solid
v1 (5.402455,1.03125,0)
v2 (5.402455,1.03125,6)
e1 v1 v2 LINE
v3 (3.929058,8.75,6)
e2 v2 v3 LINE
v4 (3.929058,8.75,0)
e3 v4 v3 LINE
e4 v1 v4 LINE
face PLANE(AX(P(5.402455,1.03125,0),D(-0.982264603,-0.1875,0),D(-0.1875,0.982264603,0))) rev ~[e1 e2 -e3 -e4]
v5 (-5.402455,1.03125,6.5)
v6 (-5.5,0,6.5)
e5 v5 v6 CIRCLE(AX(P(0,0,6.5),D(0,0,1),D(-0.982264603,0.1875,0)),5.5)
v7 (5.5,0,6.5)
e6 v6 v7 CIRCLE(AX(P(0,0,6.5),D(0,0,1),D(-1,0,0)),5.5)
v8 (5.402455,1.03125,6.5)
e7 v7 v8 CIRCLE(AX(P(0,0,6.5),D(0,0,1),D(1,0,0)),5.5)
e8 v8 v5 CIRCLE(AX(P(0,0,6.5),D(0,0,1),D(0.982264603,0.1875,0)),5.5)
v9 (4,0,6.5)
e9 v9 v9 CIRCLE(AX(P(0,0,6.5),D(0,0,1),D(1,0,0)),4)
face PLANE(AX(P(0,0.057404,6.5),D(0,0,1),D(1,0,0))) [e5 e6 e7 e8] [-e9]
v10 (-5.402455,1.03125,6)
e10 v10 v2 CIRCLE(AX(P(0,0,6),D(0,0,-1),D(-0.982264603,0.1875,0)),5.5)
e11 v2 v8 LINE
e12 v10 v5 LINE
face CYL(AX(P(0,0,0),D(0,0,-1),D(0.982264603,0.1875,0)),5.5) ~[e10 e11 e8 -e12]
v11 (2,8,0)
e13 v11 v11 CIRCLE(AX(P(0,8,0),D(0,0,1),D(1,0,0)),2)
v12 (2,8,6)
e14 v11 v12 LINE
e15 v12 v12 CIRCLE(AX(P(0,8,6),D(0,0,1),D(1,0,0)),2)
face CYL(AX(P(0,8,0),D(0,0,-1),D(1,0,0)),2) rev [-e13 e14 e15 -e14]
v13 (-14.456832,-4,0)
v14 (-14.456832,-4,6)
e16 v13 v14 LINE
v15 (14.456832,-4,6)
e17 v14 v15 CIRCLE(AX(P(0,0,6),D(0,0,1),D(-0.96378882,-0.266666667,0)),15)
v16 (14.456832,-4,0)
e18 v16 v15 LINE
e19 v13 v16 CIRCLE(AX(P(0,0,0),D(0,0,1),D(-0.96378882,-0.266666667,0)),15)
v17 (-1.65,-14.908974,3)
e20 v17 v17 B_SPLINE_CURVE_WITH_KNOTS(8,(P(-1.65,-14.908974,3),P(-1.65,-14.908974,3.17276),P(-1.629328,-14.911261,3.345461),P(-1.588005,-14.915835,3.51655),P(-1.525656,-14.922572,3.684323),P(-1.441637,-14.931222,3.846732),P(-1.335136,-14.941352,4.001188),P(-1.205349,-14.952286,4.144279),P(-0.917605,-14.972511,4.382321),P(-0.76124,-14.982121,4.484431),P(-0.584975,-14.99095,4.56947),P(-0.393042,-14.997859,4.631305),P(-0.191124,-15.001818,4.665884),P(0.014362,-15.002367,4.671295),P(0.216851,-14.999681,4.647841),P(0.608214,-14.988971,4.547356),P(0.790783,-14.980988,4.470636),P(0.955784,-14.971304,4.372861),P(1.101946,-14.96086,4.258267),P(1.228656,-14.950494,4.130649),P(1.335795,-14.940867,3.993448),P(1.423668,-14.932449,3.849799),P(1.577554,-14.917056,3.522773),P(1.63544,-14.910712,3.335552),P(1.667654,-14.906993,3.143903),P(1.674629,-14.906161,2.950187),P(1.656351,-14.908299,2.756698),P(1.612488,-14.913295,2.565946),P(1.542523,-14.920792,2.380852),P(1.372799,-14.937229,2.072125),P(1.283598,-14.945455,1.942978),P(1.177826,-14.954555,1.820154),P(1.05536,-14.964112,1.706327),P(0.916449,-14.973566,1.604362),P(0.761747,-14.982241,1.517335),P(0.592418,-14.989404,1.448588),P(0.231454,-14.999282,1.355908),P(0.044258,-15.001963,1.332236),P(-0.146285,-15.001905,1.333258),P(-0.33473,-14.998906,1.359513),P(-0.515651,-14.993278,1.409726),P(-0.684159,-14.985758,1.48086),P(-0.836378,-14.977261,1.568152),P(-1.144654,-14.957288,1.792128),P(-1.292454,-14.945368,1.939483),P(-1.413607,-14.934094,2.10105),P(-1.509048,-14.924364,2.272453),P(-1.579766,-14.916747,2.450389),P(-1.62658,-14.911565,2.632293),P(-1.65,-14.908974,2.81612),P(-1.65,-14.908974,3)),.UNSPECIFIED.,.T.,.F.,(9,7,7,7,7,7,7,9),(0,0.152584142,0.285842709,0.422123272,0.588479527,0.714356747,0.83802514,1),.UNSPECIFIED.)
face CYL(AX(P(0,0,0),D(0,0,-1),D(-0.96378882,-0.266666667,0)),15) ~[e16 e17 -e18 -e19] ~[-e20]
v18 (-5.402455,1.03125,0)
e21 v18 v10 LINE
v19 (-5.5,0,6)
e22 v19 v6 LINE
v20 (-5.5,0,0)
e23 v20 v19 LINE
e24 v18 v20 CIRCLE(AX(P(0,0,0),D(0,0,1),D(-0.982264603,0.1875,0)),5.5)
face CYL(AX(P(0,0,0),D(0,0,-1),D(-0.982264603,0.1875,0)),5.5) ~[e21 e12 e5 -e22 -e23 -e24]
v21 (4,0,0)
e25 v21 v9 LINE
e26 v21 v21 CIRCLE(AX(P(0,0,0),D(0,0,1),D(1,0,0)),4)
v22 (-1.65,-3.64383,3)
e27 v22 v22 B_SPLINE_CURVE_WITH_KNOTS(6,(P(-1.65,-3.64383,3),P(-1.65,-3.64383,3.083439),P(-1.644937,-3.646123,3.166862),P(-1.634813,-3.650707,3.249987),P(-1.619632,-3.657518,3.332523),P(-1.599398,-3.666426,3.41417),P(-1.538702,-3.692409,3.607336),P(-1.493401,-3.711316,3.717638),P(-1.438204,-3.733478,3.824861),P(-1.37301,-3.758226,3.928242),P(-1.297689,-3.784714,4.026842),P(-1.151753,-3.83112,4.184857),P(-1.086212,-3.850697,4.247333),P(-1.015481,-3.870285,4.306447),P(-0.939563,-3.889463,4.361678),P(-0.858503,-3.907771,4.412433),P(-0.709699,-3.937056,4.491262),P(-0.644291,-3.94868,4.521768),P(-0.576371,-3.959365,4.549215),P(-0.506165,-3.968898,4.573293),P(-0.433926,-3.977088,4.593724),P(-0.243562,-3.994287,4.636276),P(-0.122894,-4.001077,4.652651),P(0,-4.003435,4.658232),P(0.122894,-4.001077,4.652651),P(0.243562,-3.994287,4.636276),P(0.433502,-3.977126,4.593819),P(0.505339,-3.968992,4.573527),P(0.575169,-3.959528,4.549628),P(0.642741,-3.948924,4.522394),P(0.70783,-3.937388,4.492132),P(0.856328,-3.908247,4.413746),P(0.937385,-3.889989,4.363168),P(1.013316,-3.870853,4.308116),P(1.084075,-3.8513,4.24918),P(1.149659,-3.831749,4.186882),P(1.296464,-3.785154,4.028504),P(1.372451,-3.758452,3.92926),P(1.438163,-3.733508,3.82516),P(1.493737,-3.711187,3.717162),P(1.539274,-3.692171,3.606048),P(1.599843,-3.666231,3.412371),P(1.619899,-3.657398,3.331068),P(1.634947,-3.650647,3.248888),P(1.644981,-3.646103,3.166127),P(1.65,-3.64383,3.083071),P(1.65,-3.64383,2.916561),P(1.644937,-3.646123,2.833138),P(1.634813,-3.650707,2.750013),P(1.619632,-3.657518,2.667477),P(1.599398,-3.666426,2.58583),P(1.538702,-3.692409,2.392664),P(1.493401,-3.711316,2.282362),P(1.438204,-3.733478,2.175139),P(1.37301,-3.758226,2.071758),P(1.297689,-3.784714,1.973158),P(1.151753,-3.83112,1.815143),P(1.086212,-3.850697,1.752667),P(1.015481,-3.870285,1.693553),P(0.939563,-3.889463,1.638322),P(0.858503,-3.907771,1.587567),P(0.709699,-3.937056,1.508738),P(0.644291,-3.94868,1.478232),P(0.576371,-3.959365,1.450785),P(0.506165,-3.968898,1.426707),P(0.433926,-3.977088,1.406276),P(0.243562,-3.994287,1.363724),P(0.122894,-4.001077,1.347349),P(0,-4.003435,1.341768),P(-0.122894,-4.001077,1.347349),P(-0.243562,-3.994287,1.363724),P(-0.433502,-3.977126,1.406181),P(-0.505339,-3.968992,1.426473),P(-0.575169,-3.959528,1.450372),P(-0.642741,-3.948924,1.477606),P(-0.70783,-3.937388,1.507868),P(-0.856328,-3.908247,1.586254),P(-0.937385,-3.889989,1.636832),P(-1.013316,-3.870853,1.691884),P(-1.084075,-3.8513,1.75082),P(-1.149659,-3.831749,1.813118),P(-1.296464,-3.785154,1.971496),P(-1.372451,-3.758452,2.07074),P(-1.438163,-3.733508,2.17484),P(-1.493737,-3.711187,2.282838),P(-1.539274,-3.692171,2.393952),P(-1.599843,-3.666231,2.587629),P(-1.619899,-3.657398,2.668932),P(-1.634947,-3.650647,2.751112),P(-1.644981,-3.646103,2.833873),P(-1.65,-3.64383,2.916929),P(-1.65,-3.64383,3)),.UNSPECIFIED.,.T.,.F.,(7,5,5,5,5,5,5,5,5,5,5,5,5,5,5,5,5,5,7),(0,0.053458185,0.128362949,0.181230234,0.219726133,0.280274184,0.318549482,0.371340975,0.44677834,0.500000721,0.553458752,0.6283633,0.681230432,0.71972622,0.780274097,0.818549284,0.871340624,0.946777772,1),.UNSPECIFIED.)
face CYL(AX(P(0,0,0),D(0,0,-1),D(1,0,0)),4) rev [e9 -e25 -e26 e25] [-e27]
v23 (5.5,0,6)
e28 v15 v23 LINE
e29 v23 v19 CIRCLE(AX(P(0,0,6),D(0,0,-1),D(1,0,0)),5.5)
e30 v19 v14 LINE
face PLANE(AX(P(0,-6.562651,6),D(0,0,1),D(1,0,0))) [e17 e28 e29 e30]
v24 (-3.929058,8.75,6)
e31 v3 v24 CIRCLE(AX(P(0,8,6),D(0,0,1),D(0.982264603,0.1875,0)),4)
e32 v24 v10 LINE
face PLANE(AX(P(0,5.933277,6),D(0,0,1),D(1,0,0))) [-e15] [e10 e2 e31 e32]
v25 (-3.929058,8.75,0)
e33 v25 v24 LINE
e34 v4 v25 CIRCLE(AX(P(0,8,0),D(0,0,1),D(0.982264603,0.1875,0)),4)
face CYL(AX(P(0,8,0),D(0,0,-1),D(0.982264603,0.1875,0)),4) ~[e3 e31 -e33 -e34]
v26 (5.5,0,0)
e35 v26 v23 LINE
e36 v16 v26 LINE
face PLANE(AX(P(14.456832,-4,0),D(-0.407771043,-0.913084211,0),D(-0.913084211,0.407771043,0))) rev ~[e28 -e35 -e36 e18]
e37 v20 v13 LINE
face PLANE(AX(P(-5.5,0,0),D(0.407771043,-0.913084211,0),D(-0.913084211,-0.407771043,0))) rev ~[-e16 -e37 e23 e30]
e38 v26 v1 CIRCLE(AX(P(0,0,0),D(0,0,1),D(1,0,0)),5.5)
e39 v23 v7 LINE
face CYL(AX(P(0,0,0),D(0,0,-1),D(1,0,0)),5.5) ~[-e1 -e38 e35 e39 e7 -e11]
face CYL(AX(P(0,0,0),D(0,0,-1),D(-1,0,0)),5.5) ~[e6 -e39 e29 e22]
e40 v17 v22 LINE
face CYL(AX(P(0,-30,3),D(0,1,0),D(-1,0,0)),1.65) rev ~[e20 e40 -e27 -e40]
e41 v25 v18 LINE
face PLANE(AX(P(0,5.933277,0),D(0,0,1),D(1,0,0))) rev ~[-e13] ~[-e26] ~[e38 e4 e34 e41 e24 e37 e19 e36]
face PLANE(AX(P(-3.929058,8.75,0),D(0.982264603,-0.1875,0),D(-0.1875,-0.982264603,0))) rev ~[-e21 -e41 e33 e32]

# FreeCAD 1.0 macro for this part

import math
import FreeCAD as App
import Part
import Sketcher

doc = App.newDocument("Part")
body = doc.addObject("PartDesign::Body", "Body")

# Sketch on XY plane
sketch1 = doc.addObject("Sketcher::SketchObject", "Sketch")
body.addObject(sketch1)
sketch1.AttachmentSupport = (doc.XY_Plane, [""])
sketch1.MapMode = "FlatFace"
sketch1.addGeometry(Part.ArcOfCircle(Part.Circle(App.Vector(0, 0, 0), App.Vector(0, 0, 1), 5.5), math.radians(180), math.radians(360)), False)
sketch1.addGeometry(Part.ArcOfCircle(Part.Circle(App.Vector(0, 0, 0), App.Vector(0, 0, 1), 5.5), math.radians(0), math.radians(10.806923)), False)
sketch1.addGeometry(Part.ArcOfCircle(Part.Circle(App.Vector(0, 0, 0), App.Vector(0, 0, 1), 5.5), math.radians(10.806923), math.radians(169.193077)), False)
sketch1.addGeometry(Part.ArcOfCircle(Part.Circle(App.Vector(0, 0, 0), App.Vector(0, 0, 1), 5.5), math.radians(169.193077), math.radians(180)), False)
sketch1.addGeometry(Part.Circle(App.Vector(0, 0, 0), App.Vector(0, 0, 1), 4), False)
sketch1.addConstraint(Sketcher.Constraint("Tangent", 0, 2, 1, 1))
sketch1.addConstraint(Sketcher.Constraint("Tangent", 1, 2, 2, 1))
sketch1.addConstraint(Sketcher.Constraint("Tangent", 2, 2, 3, 1))
sketch1.addConstraint(Sketcher.Constraint("Tangent", 3, 2, 0, 1))
sketch1.addConstraint(Sketcher.Constraint("Coincident", 0, 3, -1, 1))
sketch1.addConstraint(Sketcher.Constraint("Coincident", 4, 3, -1, 1))
sketch1.addConstraint(Sketcher.Constraint("Equal", 0, 1))
sketch1.addConstraint(Sketcher.Constraint("PointOnObject", 0, 2, -1))
sketch1.addConstraint(Sketcher.Constraint("PointOnObject", 3, 2, -1))
sketch1.addConstraint(Sketcher.Constraint("Horizontal", 1, 2, 2, 2))
sketch1.addConstraint(Sketcher.Constraint("Diameter", 4, 8.0))
sketch1.addConstraint(Sketcher.Constraint("Radius", 0, 5.5))
sketch1.addConstraint(Sketcher.Constraint("DistanceY", -1, 1, 1, 2, 1.03125))
pad1 = doc.addObject("PartDesign::Pad", "Pad")
body.addObject(pad1)
pad1.Profile = sketch1
pad1.Length = 6.5

# Sketch on XY plane
sketch2 = doc.addObject("Sketcher::SketchObject", "Sketch001")
body.addObject(sketch2)
sketch2.AttachmentSupport = (doc.XY_Plane, [""])
sketch2.MapMode = "FlatFace"
sketch2.addGeometry(Part.ArcOfCircle(Part.Circle(App.Vector(0, 0, 0), App.Vector(0, 0, 1), 5.5), math.radians(10.806923), math.radians(169.193077)), False)
sketch2.addGeometry(Part.LineSegment(App.Vector(5.402455, 1.03125, 0), App.Vector(3.929058, 8.75, 0)), False)
sketch2.addGeometry(Part.ArcOfCircle(Part.Circle(App.Vector(0, 8, 0), App.Vector(0, 0, 1), 4), math.radians(10.806923), math.radians(169.193077)), False)
sketch2.addGeometry(Part.LineSegment(App.Vector(-3.929058, 8.75, 0), App.Vector(-5.402455, 1.03125, 0)), False)
sketch2.addGeometry(Part.Circle(App.Vector(0, 8, 0), App.Vector(0, 0, 1), 2), False)
sketch2.addGeometry(Part.LineSegment(App.Vector(14.456832, -4, 0), App.Vector(5.5, 0, 0)), False)
sketch2.addGeometry(Part.ArcOfCircle(Part.Circle(App.Vector(0, 0, 0), App.Vector(0, 0, 1), 5.5), math.radians(180), math.radians(360)), False)
sketch2.addGeometry(Part.LineSegment(App.Vector(-5.5, 0, 0), App.Vector(-14.456832, -4, 0)), False)
sketch2.addGeometry(Part.ArcOfCircle(Part.Circle(App.Vector(0, 0, 0), App.Vector(0, 0, 1), 15), math.radians(-164.53399), math.radians(-15.46601)), False)
sketch2.addConstraint(Sketcher.Constraint("Tangent", 0, 1, 1, 1))
sketch2.addConstraint(Sketcher.Constraint("Tangent", 1, 2, 2, 1))
sketch2.addConstraint(Sketcher.Constraint("Tangent", 2, 2, 3, 1))
sketch2.addConstraint(Sketcher.Constraint("Tangent", 3, 2, 0, 2))
sketch2.addConstraint(Sketcher.Constraint("Coincident", 5, 2, 6, 2))
sketch2.addConstraint(Sketcher.Constraint("Coincident", 6, 1, 7, 1))
sketch2.addConstraint(Sketcher.Constraint("Coincident", 7, 2, 8, 1))
sketch2.addConstraint(Sketcher.Constraint("Coincident", 8, 2, 5, 1))
sketch2.addConstraint(Sketcher.Constraint("Coincident", 0, 3, -1, 1))
sketch2.addConstraint(Sketcher.Constraint("Coincident", 6, 3, -1, 1))
sketch2.addConstraint(Sketcher.Constraint("Coincident", 8, 3, -1, 1))
sketch2.addConstraint(Sketcher.Constraint("Coincident", 4, 3, 2, 3))
sketch2.addConstraint(Sketcher.Constraint("Equal", 0, 6))
sketch2.addConstraint(Sketcher.Constraint("PointOnObject", 2, 3, -2))
sketch2.addConstraint(Sketcher.Constraint("PointOnObject", 5, 2, -1))
sketch2.addConstraint(Sketcher.Constraint("PointOnObject", 6, 1, -1))
sketch2.addConstraint(Sketcher.Constraint("Horizontal", 7, 2, 8, 2))
sketch2.addConstraint(Sketcher.Constraint("Diameter", 4, 4.0))
sketch2.addConstraint(Sketcher.Constraint("Radius", 2, 4.0))
sketch2.addConstraint(Sketcher.Constraint("Radius", 8, 15.0))
sketch2.addConstraint(Sketcher.Constraint("Radius", 0, 5.5))
sketch2.addConstraint(Sketcher.Constraint("DistanceY", -1, 1, 2, 3, 8.0))
sketch2.addConstraint(Sketcher.Constraint("DistanceY", 7, 2, -1, 1, 4.0))
pad2 = doc.addObject("PartDesign::Pad", "Pad001")
body.addObject(pad2)
pad2.Profile = sketch2
pad2.Length = 6

# Sketch on XZ plane
sketch3 = doc.addObject("Sketcher::SketchObject", "Sketch002")
body.addObject(sketch3)
sketch3.AttachmentSupport = (doc.XZ_Plane, [""])
sketch3.MapMode = "FlatFace"
sketch3.AttachmentOffset = App.Placement(App.Vector(0, 0, 15), App.Rotation())
sketch3.addGeometry(Part.Circle(App.Vector(0, 3, 0), App.Vector(0, 0, 1), 1.65), False)
sketch3.addConstraint(Sketcher.Constraint("PointOnObject", 0, 3, -2))
sketch3.addConstraint(Sketcher.Constraint("Diameter", 0, 3.3))
sketch3.addConstraint(Sketcher.Constraint("DistanceY", -1, 1, 0, 3, 3.0))
doc.recompute()
hole = doc.addObject("PartDesign::Hole", "Hole")
body.addObject(hole)
hole.Profile = sketch3
hole.ThreadType = "None"
hole.Diameter = 3.3
hole.DepthType = "Dimension"
hole.Depth = 15
hole.DrillPoint = "Angled"
hole.DrillPointAngle = 118

doc.recompute()
